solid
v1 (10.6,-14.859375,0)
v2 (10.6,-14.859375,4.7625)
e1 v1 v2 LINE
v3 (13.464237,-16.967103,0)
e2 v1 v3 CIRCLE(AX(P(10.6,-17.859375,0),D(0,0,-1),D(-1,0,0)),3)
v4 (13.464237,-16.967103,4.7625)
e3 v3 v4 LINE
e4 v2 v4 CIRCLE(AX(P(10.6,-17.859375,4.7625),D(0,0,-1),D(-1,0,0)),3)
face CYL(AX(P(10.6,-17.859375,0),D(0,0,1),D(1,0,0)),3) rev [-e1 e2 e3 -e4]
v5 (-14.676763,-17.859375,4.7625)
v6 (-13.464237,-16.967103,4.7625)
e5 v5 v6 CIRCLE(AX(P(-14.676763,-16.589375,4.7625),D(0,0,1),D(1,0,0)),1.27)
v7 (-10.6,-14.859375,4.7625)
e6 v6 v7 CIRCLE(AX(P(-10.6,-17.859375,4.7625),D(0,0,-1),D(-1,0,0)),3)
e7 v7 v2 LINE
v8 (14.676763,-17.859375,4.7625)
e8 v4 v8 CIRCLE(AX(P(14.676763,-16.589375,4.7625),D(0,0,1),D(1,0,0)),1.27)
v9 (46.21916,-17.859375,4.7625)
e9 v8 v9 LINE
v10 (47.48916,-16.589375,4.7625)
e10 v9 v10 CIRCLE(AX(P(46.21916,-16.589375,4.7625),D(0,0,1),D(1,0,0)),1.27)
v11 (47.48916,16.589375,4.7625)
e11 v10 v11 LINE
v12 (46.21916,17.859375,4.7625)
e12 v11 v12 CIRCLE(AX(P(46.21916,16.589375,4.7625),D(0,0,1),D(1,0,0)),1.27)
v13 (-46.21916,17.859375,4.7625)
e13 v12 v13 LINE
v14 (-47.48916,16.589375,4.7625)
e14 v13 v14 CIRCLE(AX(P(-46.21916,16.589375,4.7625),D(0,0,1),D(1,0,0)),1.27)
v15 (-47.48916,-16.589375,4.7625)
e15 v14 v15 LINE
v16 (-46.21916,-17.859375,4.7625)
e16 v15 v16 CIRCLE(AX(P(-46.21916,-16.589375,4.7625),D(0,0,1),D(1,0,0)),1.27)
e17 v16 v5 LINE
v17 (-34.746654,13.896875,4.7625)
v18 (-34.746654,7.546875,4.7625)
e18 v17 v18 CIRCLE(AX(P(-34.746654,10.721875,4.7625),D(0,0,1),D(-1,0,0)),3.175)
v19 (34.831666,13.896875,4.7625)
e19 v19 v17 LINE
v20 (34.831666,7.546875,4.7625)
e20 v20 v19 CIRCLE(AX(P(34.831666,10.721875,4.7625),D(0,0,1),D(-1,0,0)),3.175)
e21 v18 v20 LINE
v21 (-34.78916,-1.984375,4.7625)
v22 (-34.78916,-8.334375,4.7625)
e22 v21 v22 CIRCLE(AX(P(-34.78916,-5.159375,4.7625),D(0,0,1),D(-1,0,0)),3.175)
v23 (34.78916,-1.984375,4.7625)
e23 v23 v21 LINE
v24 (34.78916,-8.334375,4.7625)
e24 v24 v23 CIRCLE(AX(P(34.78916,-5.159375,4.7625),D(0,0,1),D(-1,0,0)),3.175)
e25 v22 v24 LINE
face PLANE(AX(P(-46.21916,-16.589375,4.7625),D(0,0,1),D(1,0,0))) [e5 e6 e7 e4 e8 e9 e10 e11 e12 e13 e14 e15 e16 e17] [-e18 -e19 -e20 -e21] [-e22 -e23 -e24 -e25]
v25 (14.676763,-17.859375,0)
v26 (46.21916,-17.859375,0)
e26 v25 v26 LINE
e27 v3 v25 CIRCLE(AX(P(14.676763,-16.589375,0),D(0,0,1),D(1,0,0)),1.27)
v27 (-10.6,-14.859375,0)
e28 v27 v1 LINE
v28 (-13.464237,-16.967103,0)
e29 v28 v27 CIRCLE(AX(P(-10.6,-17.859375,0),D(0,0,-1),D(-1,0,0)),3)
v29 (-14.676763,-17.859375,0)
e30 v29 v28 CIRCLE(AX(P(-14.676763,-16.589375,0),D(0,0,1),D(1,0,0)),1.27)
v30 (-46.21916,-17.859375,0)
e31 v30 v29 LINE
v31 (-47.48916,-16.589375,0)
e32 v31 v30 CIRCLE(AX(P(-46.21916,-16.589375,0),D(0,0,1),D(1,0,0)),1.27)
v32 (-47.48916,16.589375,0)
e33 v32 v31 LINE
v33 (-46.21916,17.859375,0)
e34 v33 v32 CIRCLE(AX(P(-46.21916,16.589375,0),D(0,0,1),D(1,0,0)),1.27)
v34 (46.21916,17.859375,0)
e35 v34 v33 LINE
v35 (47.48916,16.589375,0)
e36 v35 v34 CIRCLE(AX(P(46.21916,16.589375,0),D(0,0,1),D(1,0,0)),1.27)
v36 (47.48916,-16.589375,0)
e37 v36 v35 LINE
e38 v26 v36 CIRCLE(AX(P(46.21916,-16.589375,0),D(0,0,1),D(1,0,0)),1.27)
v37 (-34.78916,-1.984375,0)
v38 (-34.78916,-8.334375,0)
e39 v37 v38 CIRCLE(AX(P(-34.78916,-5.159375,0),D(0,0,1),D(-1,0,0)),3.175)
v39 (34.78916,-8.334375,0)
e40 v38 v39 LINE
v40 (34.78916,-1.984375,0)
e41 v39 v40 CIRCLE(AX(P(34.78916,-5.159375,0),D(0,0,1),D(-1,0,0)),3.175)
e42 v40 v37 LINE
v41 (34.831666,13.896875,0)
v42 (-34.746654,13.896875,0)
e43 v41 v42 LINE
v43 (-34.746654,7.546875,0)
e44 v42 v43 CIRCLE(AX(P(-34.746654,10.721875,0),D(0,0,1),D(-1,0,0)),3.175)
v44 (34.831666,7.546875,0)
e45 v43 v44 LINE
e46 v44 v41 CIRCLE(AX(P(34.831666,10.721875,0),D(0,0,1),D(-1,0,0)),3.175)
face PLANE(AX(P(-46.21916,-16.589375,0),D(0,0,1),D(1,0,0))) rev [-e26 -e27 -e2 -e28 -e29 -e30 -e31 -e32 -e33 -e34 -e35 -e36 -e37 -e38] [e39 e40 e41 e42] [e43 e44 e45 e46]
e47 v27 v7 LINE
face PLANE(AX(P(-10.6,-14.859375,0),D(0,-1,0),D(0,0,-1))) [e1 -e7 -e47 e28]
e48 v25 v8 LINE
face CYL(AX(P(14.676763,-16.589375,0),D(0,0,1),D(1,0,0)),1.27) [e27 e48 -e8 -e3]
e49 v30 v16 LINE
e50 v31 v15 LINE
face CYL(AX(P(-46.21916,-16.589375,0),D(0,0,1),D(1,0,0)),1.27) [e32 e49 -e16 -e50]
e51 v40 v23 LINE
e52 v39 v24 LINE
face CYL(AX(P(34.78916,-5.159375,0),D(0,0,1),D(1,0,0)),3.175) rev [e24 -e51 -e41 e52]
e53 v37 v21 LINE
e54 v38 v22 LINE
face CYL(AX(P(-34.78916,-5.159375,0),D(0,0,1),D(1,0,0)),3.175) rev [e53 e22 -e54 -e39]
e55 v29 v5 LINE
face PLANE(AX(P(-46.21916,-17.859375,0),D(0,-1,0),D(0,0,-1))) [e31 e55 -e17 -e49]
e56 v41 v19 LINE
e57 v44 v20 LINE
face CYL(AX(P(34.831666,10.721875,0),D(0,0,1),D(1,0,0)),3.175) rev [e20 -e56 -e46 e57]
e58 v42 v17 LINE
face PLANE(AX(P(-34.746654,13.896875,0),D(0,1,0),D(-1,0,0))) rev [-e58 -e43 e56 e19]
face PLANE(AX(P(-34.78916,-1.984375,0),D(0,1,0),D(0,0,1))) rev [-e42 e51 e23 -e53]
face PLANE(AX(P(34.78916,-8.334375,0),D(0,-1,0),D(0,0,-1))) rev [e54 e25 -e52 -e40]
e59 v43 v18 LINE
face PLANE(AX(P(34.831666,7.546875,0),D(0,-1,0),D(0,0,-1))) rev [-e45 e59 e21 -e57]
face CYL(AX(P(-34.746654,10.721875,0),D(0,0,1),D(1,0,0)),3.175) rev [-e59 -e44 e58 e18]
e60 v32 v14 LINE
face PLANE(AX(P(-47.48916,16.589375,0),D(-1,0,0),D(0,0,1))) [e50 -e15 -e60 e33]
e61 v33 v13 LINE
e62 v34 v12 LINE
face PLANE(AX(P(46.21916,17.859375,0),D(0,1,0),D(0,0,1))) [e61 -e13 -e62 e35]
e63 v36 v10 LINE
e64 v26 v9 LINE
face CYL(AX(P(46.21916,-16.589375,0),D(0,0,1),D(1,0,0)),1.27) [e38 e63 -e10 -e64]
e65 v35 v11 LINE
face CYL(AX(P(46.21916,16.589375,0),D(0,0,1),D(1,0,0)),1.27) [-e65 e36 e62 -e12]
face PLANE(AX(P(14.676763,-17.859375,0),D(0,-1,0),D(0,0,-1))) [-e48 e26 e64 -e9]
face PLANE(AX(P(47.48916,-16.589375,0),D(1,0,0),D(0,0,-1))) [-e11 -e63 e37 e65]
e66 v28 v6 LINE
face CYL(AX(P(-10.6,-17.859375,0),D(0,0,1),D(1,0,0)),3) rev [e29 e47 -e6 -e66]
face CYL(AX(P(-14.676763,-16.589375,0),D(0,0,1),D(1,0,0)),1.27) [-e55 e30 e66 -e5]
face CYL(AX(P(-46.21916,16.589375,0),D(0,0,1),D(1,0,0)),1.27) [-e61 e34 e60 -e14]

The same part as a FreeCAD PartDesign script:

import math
import FreeCAD as App
import Part
import Sketcher

V = App.Vector
Q = App.Units.Quantity

doc = App.newDocument("Part")
body = doc.addObject("PartDesign::Body", "Body")

# Sketch on XY plane
sketch1 = body.newObject("Sketcher::SketchObject", "Sketch")
sketch1.AttachmentSupport = (doc.getObject("XY_Plane"), [""])
sketch1.MapMode = "FlatFace"
sketch1.AttachmentOffset = App.Placement(V(0, 0, 0.1875 * 25.4), App.Rotation())
sketch1.addGeometry(Part.LineSegment(V(-46.2, -17.9, 0), V(-14.7, -17.9, 0)), False)
sketch1.addGeometry(Part.ArcOfCircle(Part.Circle(V(-14.7, -16.6, 0), V(0, 0, 1), 1.3), math.radians(-90), math.radians(-17)), False)
sketch1.addGeometry(Part.ArcOfCircle(Part.Circle(V(-10.6, -17.9, 0), V(0, 0, 1), 3), math.radians(90), math.radians(163)), False)
sketch1.addGeometry(Part.LineSegment(V(-10.6, -14.9, 0), V(10.6, -14.9, 0)), False)
sketch1.addGeometry(Part.ArcOfCircle(Part.Circle(V(10.6, -17.9, 0), V(0, 0, 1), 3), math.radians(17), math.radians(90)), False)
sketch1.addGeometry(Part.ArcOfCircle(Part.Circle(V(14.7, -16.6, 0), V(0, 0, 1), 1.3), math.radians(-163), math.radians(-90)), False)
sketch1.addGeometry(Part.LineSegment(V(14.7, -17.9, 0), V(46.2, -17.9, 0)), False)
sketch1.addGeometry(Part.ArcOfCircle(Part.Circle(V(46.2, -16.6, 0), V(0, 0, 1), 1.3), math.radians(-90), math.radians(0)), False)
sketch1.addGeometry(Part.LineSegment(V(47.5, -16.6, 0), V(47.5, 16.6, 0)), False)
sketch1.addGeometry(Part.ArcOfCircle(Part.Circle(V(46.2, 16.6, 0), V(0, 0, 1), 1.3), math.radians(0), math.radians(90)), False)
sketch1.addGeometry(Part.LineSegment(V(46.2, 17.9, 0), V(-46.2, 17.9, 0)), False)
sketch1.addGeometry(Part.ArcOfCircle(Part.Circle(V(-46.2, 16.6, 0), V(0, 0, 1), 1.3), math.radians(90), math.radians(180)), False)
sketch1.addGeometry(Part.LineSegment(V(-47.5, 16.6, 0), V(-47.5, -16.6, 0)), False)
sketch1.addGeometry(Part.ArcOfCircle(Part.Circle(V(-46.2, -16.6, 0), V(0, 0, 1), 1.3), math.radians(180), math.radians(270)), False)
sketch1.addGeometry(Part.ArcOfCircle(Part.Circle(V(34.8, -5.2, 0), V(0, 0, 1), 3.2), math.radians(-90), math.radians(90)), False)
sketch1.addGeometry(Part.LineSegment(V(34.8, -8.3, 0), V(-34.8, -8.3, 0)), False)
sketch1.addGeometry(Part.ArcOfCircle(Part.Circle(V(-34.8, -5.2, 0), V(0, 0, 1), 3.2), math.radians(90), math.radians(270)), False)
sketch1.addGeometry(Part.LineSegment(V(-34.8, -2, 0), V(34.8, -2, 0)), False)
sketch1.addGeometry(Part.ArcOfCircle(Part.Circle(V(34.8, 10.7, 0), V(0, 0, 1), 3.2), math.radians(-90), math.radians(90)), False)
sketch1.addGeometry(Part.LineSegment(V(34.8, 7.5, 0), V(-34.7, 7.5, 0)), False)
sketch1.addGeometry(Part.ArcOfCircle(Part.Circle(V(-34.7, 10.7, 0), V(0, 0, 1), 3.2), math.radians(90), math.radians(270)), False)
sketch1.addGeometry(Part.LineSegment(V(-34.7, 13.9, 0), V(34.8, 13.9, 0)), False)
sketch1.addConstraint(Sketcher.Constraint("Tangent", 0, 2, 1, 1))
sketch1.addConstraint(Sketcher.Constraint("Tangent", 1, 2, 2, 2))
sketch1.addConstraint(Sketcher.Constraint("Tangent", 2, 1, 3, 1))
sketch1.addConstraint(Sketcher.Constraint("Tangent", 3, 2, 4, 2))
sketch1.addConstraint(Sketcher.Constraint("Tangent", 4, 1, 5, 1))
sketch1.addConstraint(Sketcher.Constraint("Tangent", 5, 2, 6, 1))
sketch1.addConstraint(Sketcher.Constraint("Tangent", 6, 2, 7, 1))
sketch1.addConstraint(Sketcher.Constraint("Tangent", 7, 2, 8, 1))
sketch1.addConstraint(Sketcher.Constraint("Tangent", 8, 2, 9, 1))
sketch1.addConstraint(Sketcher.Constraint("Tangent", 9, 2, 10, 1))
sketch1.addConstraint(Sketcher.Constraint("Tangent", 10, 2, 11, 1))
sketch1.addConstraint(Sketcher.Constraint("Tangent", 11, 2, 12, 1))
sketch1.addConstraint(Sketcher.Constraint("Tangent", 12, 2, 13, 1))
sketch1.addConstraint(Sketcher.Constraint("Tangent", 13, 2, 0, 1))
sketch1.addConstraint(Sketcher.Constraint("Tangent", 14, 1, 15, 1))
sketch1.addConstraint(Sketcher.Constraint("Tangent", 15, 2, 16, 2))
sketch1.addConstraint(Sketcher.Constraint("Tangent", 16, 1, 17, 1))
sketch1.addConstraint(Sketcher.Constraint("Tangent", 17, 2, 14, 2))
sketch1.addConstraint(Sketcher.Constraint("Tangent", 18, 1, 19, 1))
sketch1.addConstraint(Sketcher.Constraint("Tangent", 19, 2, 20, 2))
sketch1.addConstraint(Sketcher.Constraint("Tangent", 20, 1, 21, 1))
sketch1.addConstraint(Sketcher.Constraint("Tangent", 21, 2, 18, 2))
sketch1.addConstraint(Sketcher.Constraint("Horizontal", 0))
sketch1.addConstraint(Sketcher.Constraint("Horizontal", 3))
sketch1.addConstraint(Sketcher.Constraint("Horizontal", 6))
sketch1.addConstraint(Sketcher.Constraint("Vertical", 8))
sketch1.addConstraint(Sketcher.Constraint("Horizontal", 10))
sketch1.addConstraint(Sketcher.Constraint("Vertical", 12))
sketch1.addConstraint(Sketcher.Constraint("Horizontal", 15))
sketch1.addConstraint(Sketcher.Constraint("Horizontal", 17))
sketch1.addConstraint(Sketcher.Constraint("Horizontal", 19))
sketch1.addConstraint(Sketcher.Constraint("Horizontal", 21))
sketch1.addConstraint(Sketcher.Constraint("Equal", 2, 4))
sketch1.addConstraint(Sketcher.Constraint("Equal", 1, 5))
sketch1.addConstraint(Sketcher.Constraint("Equal", 5, 7))
sketch1.addConstraint(Sketcher.Constraint("Equal", 7, 9))
sketch1.addConstraint(Sketcher.Constraint("Equal", 9, 11))
sketch1.addConstraint(Sketcher.Constraint("Equal", 11, 13))
sketch1.addConstraint(Sketcher.Constraint("Equal", 16, 18))
sketch1.addConstraint(Sketcher.Constraint("Symmetric", 7, 3, 11, 3, -1, 1))
sketch1.addConstraint(Sketcher.Constraint("Symmetric", 1, 3, 5, 3, -2))
sketch1.addConstraint(Sketcher.Constraint("Horizontal", 4, 3, 0, 2))
sketch1.addConstraint(Sketcher.Constraint("Equal", 17, 19))
sketch1.addConstraint(Sketcher.Constraint("Radius", 1, Q("0.05 in")))
sketch1.addConstraint(Sketcher.Constraint("Radius", 14, Q("0.125 in")))
sketch1.addConstraint(Sketcher.Constraint("DistanceY", 4, 3, 14, 3, Q("0.5 in")))
sketch1.addConstraint(Sketcher.Constraint("DistanceX", 14, 3, 7, 2, Q("0.5 in")))
sketch1.addConstraint(Sketcher.Constraint("DistanceX", 11, 2, 16, 3, Q("0.5 in")))
sketch1.addConstraint(Sketcher.Constraint("Radius", 2, 3.0))
sketch1.addConstraint(Sketcher.Constraint("DistanceY", 2, 3, -1, 1, Q("0.703125 in")))
sketch1.addConstraint(Sketcher.Constraint("DistanceX", 3, 1, 3, 2, 21.2))
sketch1.addConstraint(Sketcher.Constraint("DistanceX", 5, 3, 18, 3, Q("0.7935001 in")))
sketch1.addConstraint(Sketcher.Constraint("DistanceX", 10, 2, 10, 1, 92.43832))
sketch1.addConstraint(Sketcher.Constraint("DistanceY", 18, 3, 9, 3, 5.8675))
pad1 = body.newObject("PartDesign::Pad", "Pad")
pad1.Profile = sketch1
pad1.Length = Q("0.1875 in")
pad1.Reversed = True

doc.recompute()
